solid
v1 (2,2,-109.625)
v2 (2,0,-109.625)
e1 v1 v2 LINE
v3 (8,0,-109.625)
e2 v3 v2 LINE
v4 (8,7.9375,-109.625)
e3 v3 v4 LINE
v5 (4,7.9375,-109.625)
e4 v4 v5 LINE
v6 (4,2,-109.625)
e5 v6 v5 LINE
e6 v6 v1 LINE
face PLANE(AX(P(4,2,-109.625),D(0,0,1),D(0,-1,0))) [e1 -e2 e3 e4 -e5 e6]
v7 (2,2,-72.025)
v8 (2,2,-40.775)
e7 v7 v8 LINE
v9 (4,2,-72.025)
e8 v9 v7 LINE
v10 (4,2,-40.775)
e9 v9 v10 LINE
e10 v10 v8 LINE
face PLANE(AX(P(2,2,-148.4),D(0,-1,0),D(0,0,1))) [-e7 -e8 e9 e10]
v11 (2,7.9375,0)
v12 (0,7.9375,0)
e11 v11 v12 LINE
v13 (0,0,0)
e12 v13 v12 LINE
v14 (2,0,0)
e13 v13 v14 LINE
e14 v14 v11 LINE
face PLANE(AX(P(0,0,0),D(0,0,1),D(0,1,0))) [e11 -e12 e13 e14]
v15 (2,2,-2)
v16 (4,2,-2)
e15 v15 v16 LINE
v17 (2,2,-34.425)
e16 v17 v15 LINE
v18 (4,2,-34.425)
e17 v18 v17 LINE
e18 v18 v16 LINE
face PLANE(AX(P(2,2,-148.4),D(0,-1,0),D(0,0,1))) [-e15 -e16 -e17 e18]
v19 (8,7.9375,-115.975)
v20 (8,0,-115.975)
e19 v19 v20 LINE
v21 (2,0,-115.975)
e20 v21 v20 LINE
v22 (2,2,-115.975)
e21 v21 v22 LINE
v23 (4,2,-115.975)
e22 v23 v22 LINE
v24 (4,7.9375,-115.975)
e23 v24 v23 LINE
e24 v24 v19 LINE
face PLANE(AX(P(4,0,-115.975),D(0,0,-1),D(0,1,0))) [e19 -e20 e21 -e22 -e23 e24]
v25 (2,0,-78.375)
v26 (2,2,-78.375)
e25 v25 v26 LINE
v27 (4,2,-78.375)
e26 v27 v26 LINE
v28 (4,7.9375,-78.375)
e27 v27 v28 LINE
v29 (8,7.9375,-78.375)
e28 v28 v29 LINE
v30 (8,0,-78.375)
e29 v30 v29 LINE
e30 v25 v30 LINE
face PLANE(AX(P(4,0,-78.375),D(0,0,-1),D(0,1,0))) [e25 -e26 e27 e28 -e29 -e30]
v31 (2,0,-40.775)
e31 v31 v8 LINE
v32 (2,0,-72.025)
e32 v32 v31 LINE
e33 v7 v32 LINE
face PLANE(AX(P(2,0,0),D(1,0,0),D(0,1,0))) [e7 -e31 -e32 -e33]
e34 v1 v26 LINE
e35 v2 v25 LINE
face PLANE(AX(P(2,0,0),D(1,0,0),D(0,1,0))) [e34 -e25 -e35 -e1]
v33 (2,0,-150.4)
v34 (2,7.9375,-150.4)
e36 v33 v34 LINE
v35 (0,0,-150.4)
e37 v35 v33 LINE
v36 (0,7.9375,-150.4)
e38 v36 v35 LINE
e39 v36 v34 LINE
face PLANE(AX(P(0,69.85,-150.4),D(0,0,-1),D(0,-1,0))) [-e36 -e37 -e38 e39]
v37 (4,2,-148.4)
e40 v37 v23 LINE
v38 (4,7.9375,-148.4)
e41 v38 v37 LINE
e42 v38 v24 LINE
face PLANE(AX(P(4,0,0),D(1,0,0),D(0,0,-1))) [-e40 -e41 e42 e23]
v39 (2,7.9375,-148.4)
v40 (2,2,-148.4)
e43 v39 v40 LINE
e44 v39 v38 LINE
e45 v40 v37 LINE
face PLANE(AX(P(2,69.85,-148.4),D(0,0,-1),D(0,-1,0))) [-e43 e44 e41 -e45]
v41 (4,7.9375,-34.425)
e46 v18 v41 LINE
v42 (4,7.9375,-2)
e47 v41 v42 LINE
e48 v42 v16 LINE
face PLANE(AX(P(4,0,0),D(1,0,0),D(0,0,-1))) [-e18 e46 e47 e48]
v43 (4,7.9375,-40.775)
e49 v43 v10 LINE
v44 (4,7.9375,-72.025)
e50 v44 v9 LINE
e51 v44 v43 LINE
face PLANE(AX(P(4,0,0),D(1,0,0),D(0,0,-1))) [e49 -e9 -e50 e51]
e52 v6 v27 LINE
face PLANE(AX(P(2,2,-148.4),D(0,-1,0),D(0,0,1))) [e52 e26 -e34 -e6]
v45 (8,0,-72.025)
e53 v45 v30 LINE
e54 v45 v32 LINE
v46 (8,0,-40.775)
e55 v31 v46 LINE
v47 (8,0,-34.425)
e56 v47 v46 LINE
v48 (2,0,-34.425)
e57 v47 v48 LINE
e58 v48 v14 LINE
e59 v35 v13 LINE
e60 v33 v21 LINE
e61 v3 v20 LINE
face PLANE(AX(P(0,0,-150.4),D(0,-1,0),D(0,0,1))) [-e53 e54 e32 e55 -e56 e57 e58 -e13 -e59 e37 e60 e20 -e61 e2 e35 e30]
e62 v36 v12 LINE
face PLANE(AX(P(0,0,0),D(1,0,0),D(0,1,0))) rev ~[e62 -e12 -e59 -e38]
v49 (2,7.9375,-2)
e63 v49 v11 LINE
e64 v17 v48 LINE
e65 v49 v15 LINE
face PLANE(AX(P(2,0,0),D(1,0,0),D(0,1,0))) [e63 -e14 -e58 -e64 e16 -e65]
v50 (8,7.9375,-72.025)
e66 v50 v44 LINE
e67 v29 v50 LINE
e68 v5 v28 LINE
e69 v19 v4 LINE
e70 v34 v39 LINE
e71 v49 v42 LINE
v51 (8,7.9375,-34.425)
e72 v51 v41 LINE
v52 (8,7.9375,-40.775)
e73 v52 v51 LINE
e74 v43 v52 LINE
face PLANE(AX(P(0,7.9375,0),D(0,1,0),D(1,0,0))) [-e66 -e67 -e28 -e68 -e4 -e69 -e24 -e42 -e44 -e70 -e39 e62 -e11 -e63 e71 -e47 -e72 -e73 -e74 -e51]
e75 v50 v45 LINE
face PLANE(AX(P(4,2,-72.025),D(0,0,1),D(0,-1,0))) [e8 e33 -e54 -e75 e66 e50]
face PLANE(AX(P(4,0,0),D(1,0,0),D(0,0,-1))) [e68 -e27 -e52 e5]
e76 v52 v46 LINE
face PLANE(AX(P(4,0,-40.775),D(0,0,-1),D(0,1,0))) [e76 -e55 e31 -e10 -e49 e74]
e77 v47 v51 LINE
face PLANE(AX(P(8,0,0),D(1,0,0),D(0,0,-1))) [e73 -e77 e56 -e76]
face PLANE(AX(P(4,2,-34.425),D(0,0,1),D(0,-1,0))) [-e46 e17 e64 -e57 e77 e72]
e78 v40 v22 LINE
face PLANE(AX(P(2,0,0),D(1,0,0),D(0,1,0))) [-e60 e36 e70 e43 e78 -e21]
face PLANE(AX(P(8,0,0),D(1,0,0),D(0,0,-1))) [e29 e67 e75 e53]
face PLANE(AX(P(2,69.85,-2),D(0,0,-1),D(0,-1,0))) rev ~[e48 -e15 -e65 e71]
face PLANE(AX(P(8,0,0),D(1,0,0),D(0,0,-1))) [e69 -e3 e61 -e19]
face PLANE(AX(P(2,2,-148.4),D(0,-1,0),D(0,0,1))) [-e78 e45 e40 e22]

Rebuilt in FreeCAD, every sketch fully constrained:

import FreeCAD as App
import Part
import Sketcher
from FreeCAD import Vector
Q = App.Units.Quantity

doc = App.newDocument("Part")
body = doc.addObject("PartDesign::Body", "Body")

# Sketch on YZ plane
sketch1 = body.newObject("Sketcher::SketchObject", "Sketch")
sketch1.AttachmentSupport = (doc.getObject("YZ_Plane"), [""])
sketch1.MapMode = "FlatFace"
sketch1.addGeometry(Part.LineSegment(Vector(70, 0, 0), Vector(0, 0, 0)), False)
sketch1.addGeometry(Part.LineSegment(Vector(0, 0, 0), Vector(0, -150, 0)), False)
sketch1.addGeometry(Part.LineSegment(Vector(0, -150, 0), Vector(70, -150, 0)), False)
sketch1.addGeometry(Part.LineSegment(Vector(70, -150, 0), Vector(70, 0, 0)), False)
sketch1.addConstraint(Sketcher.Constraint("Coincident", 0, 2, 1, 1))
sketch1.addConstraint(Sketcher.Constraint("Coincident", 1, 2, 2, 1))
sketch1.addConstraint(Sketcher.Constraint("Coincident", 2, 2, 3, 1))
sketch1.addConstraint(Sketcher.Constraint("Coincident", 3, 2, 0, 1))
sketch1.addConstraint(Sketcher.Constraint("Horizontal", 0))
sketch1.addConstraint(Sketcher.Constraint("Vertical", 1))
sketch1.addConstraint(Sketcher.Constraint("Horizontal", 2))
sketch1.addConstraint(Sketcher.Constraint("Vertical", 3))
sketch1.addConstraint(Sketcher.Constraint("Coincident", 0, 2, -1, 1))
sketch1.addConstraint(Sketcher.Constraint("DistanceY", 1, 2, 1, 1, Q("150.4 mm")))
sketch1.addConstraint(Sketcher.Constraint("DistanceX", 0, 2, 0, 1, Q("69.85 mm")))
pad1 = body.newObject("PartDesign::Pad", "Pad")
pad1.Profile = sketch1
pad1.Length = 2

# Sketch on YZ plane
sketch2 = body.newObject("Sketcher::SketchObject", "Sketch001")
sketch2.AttachmentSupport = (doc.getObject("YZ_Plane"), [""])
sketch2.MapMode = "FlatFace"
sketch2.AttachmentOffset = App.Placement(Vector(0, 0, 2), App.Rotation())
sketch2.addGeometry(Part.LineSegment(Vector(2, -2, 0), Vector(2, -148, 0)), False)
sketch2.addGeometry(Part.LineSegment(Vector(2, -148, 0), Vector(70, -148, 0)), False)
sketch2.addGeometry(Part.LineSegment(Vector(70, -148, 0), Vector(70, -2, 0)), False)
sketch2.addGeometry(Part.LineSegment(Vector(70, -2, 0), Vector(2, -2, 0)), False)
sketch2.addConstraint(Sketcher.Constraint("Coincident", 0, 2, 1, 1))
sketch2.addConstraint(Sketcher.Constraint("Coincident", 1, 2, 2, 1))
sketch2.addConstraint(Sketcher.Constraint("Coincident", 2, 2, 3, 1))
sketch2.addConstraint(Sketcher.Constraint("Coincident", 3, 2, 0, 1))
sketch2.addConstraint(Sketcher.Constraint("Vertical", 0))
sketch2.addConstraint(Sketcher.Constraint("Horizontal", 1))
sketch2.addConstraint(Sketcher.Constraint("Vertical", 2))
sketch2.addConstraint(Sketcher.Constraint("Horizontal", 3))
sketch2.addConstraint(Sketcher.Constraint("DistanceX", -1, 1, 0, 2, Q("2 mm")))
sketch2.addConstraint(Sketcher.Constraint("DistanceY", 2, 2, -1, 1, Q("2 mm")))
sketch2.addConstraint(Sketcher.Constraint("DistanceY", 0, 2, 0, 1, Q("146.4 mm")))
sketch2.addConstraint(Sketcher.Constraint("DistanceX", 1, 1, 1, 2, Q("67.85 mm")))
pad2 = body.newObject("PartDesign::Pad", "Pad001")
pad2.Profile = sketch2
pad2.Length = 2

# Sketch on YZ plane
sketch3 = body.newObject("Sketcher::SketchObject", "Sketch002")
sketch3.AttachmentSupport = (doc.getObject("YZ_Plane"), [""])
sketch3.MapMode = "FlatFace"
sketch3.AttachmentOffset = App.Placement(Vector(0, 0, 4), App.Rotation())
sketch3.addGeometry(Part.LineSegment(Vector(0, -110, 0), Vector(0, -116, 0)), False)
sketch3.addGeometry(Part.LineSegment(Vector(0, -116, 0), Vector(70, -116, 0)), False)
sketch3.addGeometry(Part.LineSegment(Vector(70, -116, 0), Vector(70, -110, 0)), False)
sketch3.addGeometry(Part.LineSegment(Vector(70, -110, 0), Vector(0, -110, 0)), False)
sketch3.addGeometry(Part.LineSegment(Vector(0, -72, 0), Vector(0, -78, 0)), False)
sketch3.addGeometry(Part.LineSegment(Vector(0, -78, 0), Vector(70, -78, 0)), False)
sketch3.addGeometry(Part.LineSegment(Vector(70, -78, 0), Vector(70, -72, 0)), False)
sketch3.addGeometry(Part.LineSegment(Vector(70, -72, 0), Vector(0, -72, 0)), False)
sketch3.addGeometry(Part.LineSegment(Vector(0, -34, 0), Vector(0, -41, 0)), False)
sketch3.addGeometry(Part.LineSegment(Vector(0, -41, 0), Vector(70, -41, 0)), False)
sketch3.addGeometry(Part.LineSegment(Vector(70, -41, 0), Vector(70, -34, 0)), False)
sketch3.addGeometry(Part.LineSegment(Vector(70, -34, 0), Vector(0, -34, 0)), False)
sketch3.addConstraint(Sketcher.Constraint("Coincident", 0, 2, 1, 1))
sketch3.addConstraint(Sketcher.Constraint("Coincident", 1, 2, 2, 1))
sketch3.addConstraint(Sketcher.Constraint("Coincident", 2, 2, 3, 1))
sketch3.addConstraint(Sketcher.Constraint("Coincident", 3, 2, 0, 1))
sketch3.addConstraint(Sketcher.Constraint("Coincident", 4, 2, 5, 1))
sketch3.addConstraint(Sketcher.Constraint("Coincident", 5, 2, 6, 1))
sketch3.addConstraint(Sketcher.Constraint("Coincident", 6, 2, 7, 1))
sketch3.addConstraint(Sketcher.Constraint("Coincident", 7, 2, 4, 1))
sketch3.addConstraint(Sketcher.Constraint("Coincident", 8, 2, 9, 1))
sketch3.addConstraint(Sketcher.Constraint("Coincident", 9, 2, 10, 1))
sketch3.addConstraint(Sketcher.Constraint("Coincident", 10, 2, 11, 1))
sketch3.addConstraint(Sketcher.Constraint("Coincident", 11, 2, 8, 1))
sketch3.addConstraint(Sketcher.Constraint("Vertical", 0))
sketch3.addConstraint(Sketcher.Constraint("Horizontal", 1))
sketch3.addConstraint(Sketcher.Constraint("Vertical", 2))
sketch3.addConstraint(Sketcher.Constraint("Horizontal", 3))
sketch3.addConstraint(Sketcher.Constraint("Vertical", 4))
sketch3.addConstraint(Sketcher.Constraint("Horizontal", 5))
sketch3.addConstraint(Sketcher.Constraint("Vertical", 6))
sketch3.addConstraint(Sketcher.Constraint("Horizontal", 7))
sketch3.addConstraint(Sketcher.Constraint("Vertical", 8))
sketch3.addConstraint(Sketcher.Constraint("Horizontal", 9))
sketch3.addConstraint(Sketcher.Constraint("Vertical", 10))
sketch3.addConstraint(Sketcher.Constraint("Horizontal", 11))
sketch3.addConstraint(Sketcher.Constraint("PointOnObject", 0, 2, -2))
sketch3.addConstraint(Sketcher.Constraint("PointOnObject", 4, 2, -2))
sketch3.addConstraint(Sketcher.Constraint("PointOnObject", 8, 2, -2))
sketch3.addConstraint(Sketcher.Constraint("Vertical", 2, 2, 5, 2))
sketch3.addConstraint(Sketcher.Constraint("Vertical", 6, 2, 9, 2))
sketch3.addConstraint(Sketcher.Constraint("Equal", 2, 4))
sketch3.addConstraint(Sketcher.Constraint("Equal", 6, 8))
sketch3.addConstraint(Sketcher.Constraint("DistanceY", 0, 2, 0, 1, Q("6.35 mm")))
sketch3.addConstraint(Sketcher.Constraint("DistanceX", 1, 1, 1, 2, Q("69.85 mm")))
sketch3.addConstraint(Sketcher.Constraint("DistanceY", 0, 2, 4, 2, Q("37.6 mm")))
sketch3.addConstraint(Sketcher.Constraint("DistanceY", 4, 2, 8, 2, Q("37.6 mm")))
sketch3.addConstraint(Sketcher.Constraint("DistanceY", 0, 2, -1, 1, Q("115.975 mm")))
pad3 = body.newObject("PartDesign::Pad", "Pad002")
pad3.Profile = sketch3
pad3.Length = 4

# Sketch on XZ plane
sketch4 = body.newObject("Sketcher::SketchObject", "Sketch003")
sketch4.AttachmentSupport = (doc.getObject("XZ_Plane"), [""])
sketch4.MapMode = "FlatFace"
sketch4.AttachmentOffset = App.Placement(Vector(0, 0, -69.85), App.Rotation())
sketch4.addGeometry(Part.LineSegment(Vector(8, -150, 0), Vector(2, -150, 0)), False)
sketch4.addGeometry(Part.LineSegment(Vector(2, -150, 0), Vector(2, 0, 0)), False)
sketch4.addGeometry(Part.LineSegment(Vector(2, 0, 0), Vector(8, 0, 0)), False)
sketch4.addGeometry(Part.LineSegment(Vector(8, 0, 0), Vector(8, -150, 0)), False)
sketch4.addConstraint(Sketcher.Constraint("Coincident", 0, 2, 1, 1))
sketch4.addConstraint(Sketcher.Constraint("Coincident", 1, 2, 2, 1))
sketch4.addConstraint(Sketcher.Constraint("Coincident", 2, 2, 3, 1))
sketch4.addConstraint(Sketcher.Constraint("Coincident", 3, 2, 0, 1))
sketch4.addConstraint(Sketcher.Constraint("Horizontal", 0))
sketch4.addConstraint(Sketcher.Constraint("Vertical", 1))
sketch4.addConstraint(Sketcher.Constraint("Horizontal", 2))
sketch4.addConstraint(Sketcher.Constraint("Vertical", 3))
sketch4.addConstraint(Sketcher.Constraint("PointOnObject", 1, 2, -1))
sketch4.addConstraint(Sketcher.Constraint("DistanceX", 0, 2, 0, 1, Q("6 mm")))
sketch4.addConstraint(Sketcher.Constraint("DistanceY", 1, 1, 1, 2, Q("150.4 mm")))
sketch4.addConstraint(Sketcher.Constraint("DistanceX", -1, 1, 0, 2, Q("2 mm")))
pocket1 = body.newObject("PartDesign::Pocket", "Pocket")
pocket1.Profile = sketch4
pocket1.Length = 2
pocket1.Reversed = True

# Sketch on XZ plane
sketch5 = body.newObject("Sketcher::SketchObject", "Sketch004")
sketch5.AttachmentSupport = (doc.getObject("XZ_Plane"), [""])
sketch5.MapMode = "FlatFace"
sketch5.AttachmentOffset = App.Placement(Vector(0, 0, -67.85), App.Rotation())
sketch5.addGeometry(Part.LineSegment(Vector(4, -148.4, 0), Vector(4, -116, 0)), False)
sketch5.addGeometry(Part.LineSegment(Vector(4, -116, 0), Vector(8, -116, 0)), False)
sketch5.addGeometry(Part.LineSegment(Vector(8, -116, 0), Vector(8, -148.4, 0)), False)
sketch5.addGeometry(Part.LineSegment(Vector(8, -148.4, 0), Vector(4, -148.4, 0)), False)
sketch5.addGeometry(Part.LineSegment(Vector(8, -78.4, 0), Vector(8, -109.6, 0)), False)
sketch5.addGeometry(Part.LineSegment(Vector(8, -109.6, 0), Vector(4, -109.6, 0)), False)
sketch5.addGeometry(Part.LineSegment(Vector(4, -109.6, 0), Vector(4, -78.4, 0)), False)
sketch5.addGeometry(Part.LineSegment(Vector(4, -78.4, 0), Vector(8, -78.4, 0)), False)
sketch5.addGeometry(Part.LineSegment(Vector(8, -40.8, 0), Vector(8, -72, 0)), False)
sketch5.addGeometry(Part.LineSegment(Vector(8, -72, 0), Vector(4, -72, 0)), False)
sketch5.addGeometry(Part.LineSegment(Vector(4, -72, 0), Vector(4, -40.8, 0)), False)
sketch5.addGeometry(Part.LineSegment(Vector(4, -40.8, 0), Vector(8, -40.8, 0)), False)
sketch5.addGeometry(Part.LineSegment(Vector(4, -34.4, 0), Vector(4, -2, 0)), False)
sketch5.addGeometry(Part.LineSegment(Vector(4, -2, 0), Vector(8, -2, 0)), False)
sketch5.addGeometry(Part.LineSegment(Vector(8, -2, 0), Vector(8, -34.4, 0)), False)
sketch5.addGeometry(Part.LineSegment(Vector(8, -34.4, 0), Vector(4, -34.4, 0)), False)
sketch5.addConstraint(Sketcher.Constraint("Coincident", 0, 2, 1, 1))
sketch5.addConstraint(Sketcher.Constraint("Coincident", 1, 2, 2, 1))
sketch5.addConstraint(Sketcher.Constraint("Coincident", 2, 2, 3, 1))
sketch5.addConstraint(Sketcher.Constraint("Coincident", 3, 2, 0, 1))
sketch5.addConstraint(Sketcher.Constraint("Coincident", 4, 2, 5, 1))
sketch5.addConstraint(Sketcher.Constraint("Coincident", 5, 2, 6, 1))
sketch5.addConstraint(Sketcher.Constraint("Coincident", 6, 2, 7, 1))
sketch5.addConstraint(Sketcher.Constraint("Coincident", 7, 2, 4, 1))
sketch5.addConstraint(Sketcher.Constraint("Coincident", 8, 2, 9, 1))
sketch5.addConstraint(Sketcher.Constraint("Coincident", 9, 2, 10, 1))
sketch5.addConstraint(Sketcher.Constraint("Coincident", 10, 2, 11, 1))
sketch5.addConstraint(Sketcher.Constraint("Coincident", 11, 2, 8, 1))
sketch5.addConstraint(Sketcher.Constraint("Coincident", 12, 2, 13, 1))
sketch5.addConstraint(Sketcher.Constraint("Coincident", 13, 2, 14, 1))
sketch5.addConstraint(Sketcher.Constraint("Coincident", 14, 2, 15, 1))
sketch5.addConstraint(Sketcher.Constraint("Coincident", 15, 2, 12, 1))
sketch5.addConstraint(Sketcher.Constraint("Vertical", 0))
sketch5.addConstraint(Sketcher.Constraint("Horizontal", 1))
sketch5.addConstraint(Sketcher.Constraint("Vertical", 2))
sketch5.addConstraint(Sketcher.Constraint("Horizontal", 3))
sketch5.addConstraint(Sketcher.Constraint("Vertical", 4))
sketch5.addConstraint(Sketcher.Constraint("Horizontal", 5))
sketch5.addConstraint(Sketcher.Constraint("Vertical", 6))
sketch5.addConstraint(Sketcher.Constraint("Horizontal", 7))
sketch5.addConstraint(Sketcher.Constraint("Vertical", 8))
sketch5.addConstraint(Sketcher.Constraint("Horizontal", 9))
sketch5.addConstraint(Sketcher.Constraint("Vertical", 10))
sketch5.addConstraint(Sketcher.Constraint("Horizontal", 11))
sketch5.addConstraint(Sketcher.Constraint("Vertical", 12))
sketch5.addConstraint(Sketcher.Constraint("Horizontal", 13))
sketch5.addConstraint(Sketcher.Constraint("Vertical", 14))
sketch5.addConstraint(Sketcher.Constraint("Horizontal", 15))
sketch5.addConstraint(Sketcher.Constraint("Vertical", 2, 2, 4, 2))
sketch5.addConstraint(Sketcher.Constraint("Vertical", 3, 2, 5, 2))
sketch5.addConstraint(Sketcher.Constraint("Vertical", 7, 2, 8, 2))
sketch5.addConstraint(Sketcher.Constraint("Vertical", 6, 2, 9, 2))
sketch5.addConstraint(Sketcher.Constraint("Vertical", 10, 2, 12, 2))
sketch5.addConstraint(Sketcher.Constraint("Vertical", 11, 2, 13, 2))
sketch5.addConstraint(Sketcher.Constraint("Equal", 6, 8))
sketch5.addConstraint(Sketcher.Constraint("Equal", 2, 12))
sketch5.addConstraint(Sketcher.Constraint("DistanceX", 1, 1, 1, 2, Q("4 mm")))
sketch5.addConstraint(Sketcher.Constraint("DistanceX", -1, 1, 0, 2, Q("4 mm")))
sketch5.addConstraint(Sketcher.Constraint("DistanceY", 12, 2, -1, 1, Q("2 mm")))
sketch5.addConstraint(Sketcher.Constraint("DistanceY", 4, 2, 4, 1, Q("31.25 mm")))
sketch5.addConstraint(Sketcher.Constraint("DistanceY", 2, 2, -1, 1, Q("148.4 mm")))
sketch5.addConstraint(Sketcher.Constraint("DistanceY", 0, 2, 6, 2, Q("37.6 mm")))
sketch5.addConstraint(Sketcher.Constraint("DistanceY", 4, 2, 8, 2, Q("37.6 mm")))
sketch5.addConstraint(Sketcher.Constraint("DistanceY", 8, 2, 14, 2, Q("37.6 mm")))
pad4 = body.newObject("PartDesign::Pad", "Pad003")
pad4.Profile = sketch5
pad4.Length = 2

# Sketch on YZ plane
sketch6 = body.newObject("Sketcher::SketchObject", "Sketch005")
sketch6.AttachmentSupport = (doc.getObject("YZ_Plane"), [""])
sketch6.MapMode = "FlatFace"
sketch6.AttachmentOffset = App.Placement(Vector(0, 0, 4), App.Rotation())
sketch6.addGeometry(Part.LineSegment(Vector(0, -109.6, 0), Vector(2, -109.6, 0)), False)
sketch6.addGeometry(Part.LineSegment(Vector(2, -109.6, 0), Vector(2, -116, 0)), False)
sketch6.addGeometry(Part.LineSegment(Vector(2, -116, 0), Vector(0, -116, 0)), False)
sketch6.addGeometry(Part.LineSegment(Vector(0, -116, 0), Vector(0, -109.6, 0)), False)
sketch6.addGeometry(Part.LineSegment(Vector(0, -72, 0), Vector(2, -72, 0)), False)
sketch6.addGeometry(Part.LineSegment(Vector(2, -72, 0), Vector(2, -78.4, 0)), False)
sketch6.addGeometry(Part.LineSegment(Vector(2, -78.4, 0), Vector(0, -78.4, 0)), False)
sketch6.addGeometry(Part.LineSegment(Vector(0, -78.4, 0), Vector(0, -72, 0)), False)
sketch6.addGeometry(Part.LineSegment(Vector(0, -34.4, 0), Vector(2, -34.4, 0)), False)
sketch6.addGeometry(Part.LineSegment(Vector(2, -34.4, 0), Vector(2, -40.8, 0)), False)
sketch6.addGeometry(Part.LineSegment(Vector(2, -40.8, 0), Vector(0, -40.8, 0)), False)
sketch6.addGeometry(Part.LineSegment(Vector(0, -40.8, 0), Vector(0, -34.4, 0)), False)
sketch6.addConstraint(Sketcher.Constraint("Coincident", 0, 2, 1, 1))
sketch6.addConstraint(Sketcher.Constraint("Coincident", 1, 2, 2, 1))
sketch6.addConstraint(Sketcher.Constraint("Coincident", 2, 2, 3, 1))
sketch6.addConstraint(Sketcher.Constraint("Coincident", 3, 2, 0, 1))
sketch6.addConstraint(Sketcher.Constraint("Coincident", 4, 2, 5, 1))
sketch6.addConstraint(Sketcher.Constraint("Coincident", 5, 2, 6, 1))
sketch6.addConstraint(Sketcher.Constraint("Coincident", 6, 2, 7, 1))
sketch6.addConstraint(Sketcher.Constraint("Coincident", 7, 2, 4, 1))
sketch6.addConstraint(Sketcher.Constraint("Coincident", 8, 2, 9, 1))
sketch6.addConstraint(Sketcher.Constraint("Coincident", 9, 2, 10, 1))
sketch6.addConstraint(Sketcher.Constraint("Coincident", 10, 2, 11, 1))
sketch6.addConstraint(Sketcher.Constraint("Coincident", 11, 2, 8, 1))
sketch6.addConstraint(Sketcher.Constraint("Horizontal", 0))
sketch6.addConstraint(Sketcher.Constraint("Vertical", 1))
sketch6.addConstraint(Sketcher.Constraint("Horizontal", 2))
sketch6.addConstraint(Sketcher.Constraint("Vertical", 3))
sketch6.addConstraint(Sketcher.Constraint("Horizontal", 4))
sketch6.addConstraint(Sketcher.Constraint("Vertical", 5))
sketch6.addConstraint(Sketcher.Constraint("Horizontal", 6))
sketch6.addConstraint(Sketcher.Constraint("Vertical", 7))
sketch6.addConstraint(Sketcher.Constraint("Horizontal", 8))
sketch6.addConstraint(Sketcher.Constraint("Vertical", 9))
sketch6.addConstraint(Sketcher.Constraint("Horizontal", 10))
sketch6.addConstraint(Sketcher.Constraint("Vertical", 11))
sketch6.addConstraint(Sketcher.Constraint("PointOnObject", 2, 2, -2))
sketch6.addConstraint(Sketcher.Constraint("PointOnObject", 6, 2, -2))
sketch6.addConstraint(Sketcher.Constraint("PointOnObject", 10, 2, -2))
sketch6.addConstraint(Sketcher.Constraint("Vertical", 1, 2, 4, 2))
sketch6.addConstraint(Sketcher.Constraint("Vertical", 5, 2, 8, 2))
sketch6.addConstraint(Sketcher.Constraint("Equal", 3, 5))
sketch6.addConstraint(Sketcher.Constraint("Equal", 7, 9))
sketch6.addConstraint(Sketcher.Constraint("DistanceX", 0, 1, 0, 2, Q("2 mm")))
sketch6.addConstraint(Sketcher.Constraint("DistanceY", 1, 2, 1, 1, Q("6.35 mm")))
sketch6.addConstraint(Sketcher.Constraint("DistanceY", 0, 2, 4, 2, Q("37.6 mm")))
sketch6.addConstraint(Sketcher.Constraint("DistanceY", 4, 2, 8, 2, Q("37.6 mm")))
sketch6.addConstraint(Sketcher.Constraint("DistanceY", 0, 2, -1, 1, Q("109.625 mm")))
pad5 = body.newObject("PartDesign::Pad", "Pad004")
pad5.Profile = sketch6
pad5.Length = 2
pad5.Reversed = True

# Sketch on XZ plane
sketch7 = body.newObject("Sketcher::SketchObject", "Sketch006")
sketch7.AttachmentSupport = (doc.getObject("XZ_Plane"), [""])
sketch7.MapMode = "FlatFace"
sketch7.AttachmentOffset = App.Placement(Vector(0, 0, -67.85), App.Rotation())
sketch7.addGeometry(Part.Circle(Vector(5, -37.6, 0), Vector(0, 0, 1), 2.2), False)
sketch7.addGeometry(Part.Circle(Vector(5, -112.8, 0), Vector(0, 0, 1), 2.2), False)
sketch7.addConstraint(Sketcher.Constraint("Equal", 0, 1))
sketch7.addConstraint(Sketcher.Constraint("Vertical", 0, 3, 1, 3))
sketch7.addConstraint(Sketcher.Constraint("Diameter", 0, Q("4.5 mm")))
sketch7.addConstraint(Sketcher.Constraint("DistanceX", -1, 1, 0, 3, Q("5 mm")))
sketch7.addConstraint(Sketcher.Constraint("DistanceY", 0, 3, -1, 1, Q("37.6 mm")))
sketch7.addConstraint(Sketcher.Constraint("DistanceY", 1, 3, -1, 1, Q("112.8 mm")))
pocket2 = body.newObject("PartDesign::Pocket", "Pocket001")
pocket2.Profile = sketch7
pocket2.Length = 5
pocket2.Reversed = True

# Sketch on XZ plane
sketch8 = body.newObject("Sketcher::SketchObject", "Sketch007")
sketch8.AttachmentSupport = (doc.getObject("XZ_Plane"), [""])
sketch8.MapMode = "FlatFace"
sketch8.AttachmentOffset = App.Placement(Vector(0, 0, -69.85), App.Rotation())
sketch8.addGeometry(Part.LineSegment(Vector(-3, -152, 0), Vector(-3, 4, 0)), False)
sketch8.addGeometry(Part.LineSegment(Vector(-3, 4, 0), Vector(11, 4, 0)), False)
sketch8.addGeometry(Part.LineSegment(Vector(11, 4, 0), Vector(11, -152, 0)), False)
sketch8.addGeometry(Part.LineSegment(Vector(11, -152, 0), Vector(-3, -152, 0)), False)
sketch8.addConstraint(Sketcher.Constraint("Coincident", 0, 2, 1, 1))
sketch8.addConstraint(Sketcher.Constraint("Coincident", 1, 2, 2, 1))
sketch8.addConstraint(Sketcher.Constraint("Coincident", 2, 2, 3, 1))
sketch8.addConstraint(Sketcher.Constraint("Coincident", 3, 2, 0, 1))
sketch8.addConstraint(Sketcher.Constraint("Vertical", 0))
sketch8.addConstraint(Sketcher.Constraint("Horizontal", 1))
sketch8.addConstraint(Sketcher.Constraint("Vertical", 2))
sketch8.addConstraint(Sketcher.Constraint("Horizontal", 3))
sketch8.addConstraint(Sketcher.Constraint("DistanceX", 1, 1, 1, 2, Q("13.3682 mm")))
sketch8.addConstraint(Sketcher.Constraint("DistanceY", 0, 1, 0, 2, Q("155.6933 mm")))
sketch8.addConstraint(Sketcher.Constraint("DistanceY", -1, 1, 0, 2, Q("3.624 mm")))
sketch8.addConstraint(Sketcher.Constraint("DistanceX", 0, 2, -1, 1, Q("2.5975 mm")))
pocket3 = body.newObject("PartDesign::Pocket", "Pocket002")
pocket3.Profile = sketch8
pocket3.Length = 61.9125
pocket3.Reversed = True

doc.recompute()
